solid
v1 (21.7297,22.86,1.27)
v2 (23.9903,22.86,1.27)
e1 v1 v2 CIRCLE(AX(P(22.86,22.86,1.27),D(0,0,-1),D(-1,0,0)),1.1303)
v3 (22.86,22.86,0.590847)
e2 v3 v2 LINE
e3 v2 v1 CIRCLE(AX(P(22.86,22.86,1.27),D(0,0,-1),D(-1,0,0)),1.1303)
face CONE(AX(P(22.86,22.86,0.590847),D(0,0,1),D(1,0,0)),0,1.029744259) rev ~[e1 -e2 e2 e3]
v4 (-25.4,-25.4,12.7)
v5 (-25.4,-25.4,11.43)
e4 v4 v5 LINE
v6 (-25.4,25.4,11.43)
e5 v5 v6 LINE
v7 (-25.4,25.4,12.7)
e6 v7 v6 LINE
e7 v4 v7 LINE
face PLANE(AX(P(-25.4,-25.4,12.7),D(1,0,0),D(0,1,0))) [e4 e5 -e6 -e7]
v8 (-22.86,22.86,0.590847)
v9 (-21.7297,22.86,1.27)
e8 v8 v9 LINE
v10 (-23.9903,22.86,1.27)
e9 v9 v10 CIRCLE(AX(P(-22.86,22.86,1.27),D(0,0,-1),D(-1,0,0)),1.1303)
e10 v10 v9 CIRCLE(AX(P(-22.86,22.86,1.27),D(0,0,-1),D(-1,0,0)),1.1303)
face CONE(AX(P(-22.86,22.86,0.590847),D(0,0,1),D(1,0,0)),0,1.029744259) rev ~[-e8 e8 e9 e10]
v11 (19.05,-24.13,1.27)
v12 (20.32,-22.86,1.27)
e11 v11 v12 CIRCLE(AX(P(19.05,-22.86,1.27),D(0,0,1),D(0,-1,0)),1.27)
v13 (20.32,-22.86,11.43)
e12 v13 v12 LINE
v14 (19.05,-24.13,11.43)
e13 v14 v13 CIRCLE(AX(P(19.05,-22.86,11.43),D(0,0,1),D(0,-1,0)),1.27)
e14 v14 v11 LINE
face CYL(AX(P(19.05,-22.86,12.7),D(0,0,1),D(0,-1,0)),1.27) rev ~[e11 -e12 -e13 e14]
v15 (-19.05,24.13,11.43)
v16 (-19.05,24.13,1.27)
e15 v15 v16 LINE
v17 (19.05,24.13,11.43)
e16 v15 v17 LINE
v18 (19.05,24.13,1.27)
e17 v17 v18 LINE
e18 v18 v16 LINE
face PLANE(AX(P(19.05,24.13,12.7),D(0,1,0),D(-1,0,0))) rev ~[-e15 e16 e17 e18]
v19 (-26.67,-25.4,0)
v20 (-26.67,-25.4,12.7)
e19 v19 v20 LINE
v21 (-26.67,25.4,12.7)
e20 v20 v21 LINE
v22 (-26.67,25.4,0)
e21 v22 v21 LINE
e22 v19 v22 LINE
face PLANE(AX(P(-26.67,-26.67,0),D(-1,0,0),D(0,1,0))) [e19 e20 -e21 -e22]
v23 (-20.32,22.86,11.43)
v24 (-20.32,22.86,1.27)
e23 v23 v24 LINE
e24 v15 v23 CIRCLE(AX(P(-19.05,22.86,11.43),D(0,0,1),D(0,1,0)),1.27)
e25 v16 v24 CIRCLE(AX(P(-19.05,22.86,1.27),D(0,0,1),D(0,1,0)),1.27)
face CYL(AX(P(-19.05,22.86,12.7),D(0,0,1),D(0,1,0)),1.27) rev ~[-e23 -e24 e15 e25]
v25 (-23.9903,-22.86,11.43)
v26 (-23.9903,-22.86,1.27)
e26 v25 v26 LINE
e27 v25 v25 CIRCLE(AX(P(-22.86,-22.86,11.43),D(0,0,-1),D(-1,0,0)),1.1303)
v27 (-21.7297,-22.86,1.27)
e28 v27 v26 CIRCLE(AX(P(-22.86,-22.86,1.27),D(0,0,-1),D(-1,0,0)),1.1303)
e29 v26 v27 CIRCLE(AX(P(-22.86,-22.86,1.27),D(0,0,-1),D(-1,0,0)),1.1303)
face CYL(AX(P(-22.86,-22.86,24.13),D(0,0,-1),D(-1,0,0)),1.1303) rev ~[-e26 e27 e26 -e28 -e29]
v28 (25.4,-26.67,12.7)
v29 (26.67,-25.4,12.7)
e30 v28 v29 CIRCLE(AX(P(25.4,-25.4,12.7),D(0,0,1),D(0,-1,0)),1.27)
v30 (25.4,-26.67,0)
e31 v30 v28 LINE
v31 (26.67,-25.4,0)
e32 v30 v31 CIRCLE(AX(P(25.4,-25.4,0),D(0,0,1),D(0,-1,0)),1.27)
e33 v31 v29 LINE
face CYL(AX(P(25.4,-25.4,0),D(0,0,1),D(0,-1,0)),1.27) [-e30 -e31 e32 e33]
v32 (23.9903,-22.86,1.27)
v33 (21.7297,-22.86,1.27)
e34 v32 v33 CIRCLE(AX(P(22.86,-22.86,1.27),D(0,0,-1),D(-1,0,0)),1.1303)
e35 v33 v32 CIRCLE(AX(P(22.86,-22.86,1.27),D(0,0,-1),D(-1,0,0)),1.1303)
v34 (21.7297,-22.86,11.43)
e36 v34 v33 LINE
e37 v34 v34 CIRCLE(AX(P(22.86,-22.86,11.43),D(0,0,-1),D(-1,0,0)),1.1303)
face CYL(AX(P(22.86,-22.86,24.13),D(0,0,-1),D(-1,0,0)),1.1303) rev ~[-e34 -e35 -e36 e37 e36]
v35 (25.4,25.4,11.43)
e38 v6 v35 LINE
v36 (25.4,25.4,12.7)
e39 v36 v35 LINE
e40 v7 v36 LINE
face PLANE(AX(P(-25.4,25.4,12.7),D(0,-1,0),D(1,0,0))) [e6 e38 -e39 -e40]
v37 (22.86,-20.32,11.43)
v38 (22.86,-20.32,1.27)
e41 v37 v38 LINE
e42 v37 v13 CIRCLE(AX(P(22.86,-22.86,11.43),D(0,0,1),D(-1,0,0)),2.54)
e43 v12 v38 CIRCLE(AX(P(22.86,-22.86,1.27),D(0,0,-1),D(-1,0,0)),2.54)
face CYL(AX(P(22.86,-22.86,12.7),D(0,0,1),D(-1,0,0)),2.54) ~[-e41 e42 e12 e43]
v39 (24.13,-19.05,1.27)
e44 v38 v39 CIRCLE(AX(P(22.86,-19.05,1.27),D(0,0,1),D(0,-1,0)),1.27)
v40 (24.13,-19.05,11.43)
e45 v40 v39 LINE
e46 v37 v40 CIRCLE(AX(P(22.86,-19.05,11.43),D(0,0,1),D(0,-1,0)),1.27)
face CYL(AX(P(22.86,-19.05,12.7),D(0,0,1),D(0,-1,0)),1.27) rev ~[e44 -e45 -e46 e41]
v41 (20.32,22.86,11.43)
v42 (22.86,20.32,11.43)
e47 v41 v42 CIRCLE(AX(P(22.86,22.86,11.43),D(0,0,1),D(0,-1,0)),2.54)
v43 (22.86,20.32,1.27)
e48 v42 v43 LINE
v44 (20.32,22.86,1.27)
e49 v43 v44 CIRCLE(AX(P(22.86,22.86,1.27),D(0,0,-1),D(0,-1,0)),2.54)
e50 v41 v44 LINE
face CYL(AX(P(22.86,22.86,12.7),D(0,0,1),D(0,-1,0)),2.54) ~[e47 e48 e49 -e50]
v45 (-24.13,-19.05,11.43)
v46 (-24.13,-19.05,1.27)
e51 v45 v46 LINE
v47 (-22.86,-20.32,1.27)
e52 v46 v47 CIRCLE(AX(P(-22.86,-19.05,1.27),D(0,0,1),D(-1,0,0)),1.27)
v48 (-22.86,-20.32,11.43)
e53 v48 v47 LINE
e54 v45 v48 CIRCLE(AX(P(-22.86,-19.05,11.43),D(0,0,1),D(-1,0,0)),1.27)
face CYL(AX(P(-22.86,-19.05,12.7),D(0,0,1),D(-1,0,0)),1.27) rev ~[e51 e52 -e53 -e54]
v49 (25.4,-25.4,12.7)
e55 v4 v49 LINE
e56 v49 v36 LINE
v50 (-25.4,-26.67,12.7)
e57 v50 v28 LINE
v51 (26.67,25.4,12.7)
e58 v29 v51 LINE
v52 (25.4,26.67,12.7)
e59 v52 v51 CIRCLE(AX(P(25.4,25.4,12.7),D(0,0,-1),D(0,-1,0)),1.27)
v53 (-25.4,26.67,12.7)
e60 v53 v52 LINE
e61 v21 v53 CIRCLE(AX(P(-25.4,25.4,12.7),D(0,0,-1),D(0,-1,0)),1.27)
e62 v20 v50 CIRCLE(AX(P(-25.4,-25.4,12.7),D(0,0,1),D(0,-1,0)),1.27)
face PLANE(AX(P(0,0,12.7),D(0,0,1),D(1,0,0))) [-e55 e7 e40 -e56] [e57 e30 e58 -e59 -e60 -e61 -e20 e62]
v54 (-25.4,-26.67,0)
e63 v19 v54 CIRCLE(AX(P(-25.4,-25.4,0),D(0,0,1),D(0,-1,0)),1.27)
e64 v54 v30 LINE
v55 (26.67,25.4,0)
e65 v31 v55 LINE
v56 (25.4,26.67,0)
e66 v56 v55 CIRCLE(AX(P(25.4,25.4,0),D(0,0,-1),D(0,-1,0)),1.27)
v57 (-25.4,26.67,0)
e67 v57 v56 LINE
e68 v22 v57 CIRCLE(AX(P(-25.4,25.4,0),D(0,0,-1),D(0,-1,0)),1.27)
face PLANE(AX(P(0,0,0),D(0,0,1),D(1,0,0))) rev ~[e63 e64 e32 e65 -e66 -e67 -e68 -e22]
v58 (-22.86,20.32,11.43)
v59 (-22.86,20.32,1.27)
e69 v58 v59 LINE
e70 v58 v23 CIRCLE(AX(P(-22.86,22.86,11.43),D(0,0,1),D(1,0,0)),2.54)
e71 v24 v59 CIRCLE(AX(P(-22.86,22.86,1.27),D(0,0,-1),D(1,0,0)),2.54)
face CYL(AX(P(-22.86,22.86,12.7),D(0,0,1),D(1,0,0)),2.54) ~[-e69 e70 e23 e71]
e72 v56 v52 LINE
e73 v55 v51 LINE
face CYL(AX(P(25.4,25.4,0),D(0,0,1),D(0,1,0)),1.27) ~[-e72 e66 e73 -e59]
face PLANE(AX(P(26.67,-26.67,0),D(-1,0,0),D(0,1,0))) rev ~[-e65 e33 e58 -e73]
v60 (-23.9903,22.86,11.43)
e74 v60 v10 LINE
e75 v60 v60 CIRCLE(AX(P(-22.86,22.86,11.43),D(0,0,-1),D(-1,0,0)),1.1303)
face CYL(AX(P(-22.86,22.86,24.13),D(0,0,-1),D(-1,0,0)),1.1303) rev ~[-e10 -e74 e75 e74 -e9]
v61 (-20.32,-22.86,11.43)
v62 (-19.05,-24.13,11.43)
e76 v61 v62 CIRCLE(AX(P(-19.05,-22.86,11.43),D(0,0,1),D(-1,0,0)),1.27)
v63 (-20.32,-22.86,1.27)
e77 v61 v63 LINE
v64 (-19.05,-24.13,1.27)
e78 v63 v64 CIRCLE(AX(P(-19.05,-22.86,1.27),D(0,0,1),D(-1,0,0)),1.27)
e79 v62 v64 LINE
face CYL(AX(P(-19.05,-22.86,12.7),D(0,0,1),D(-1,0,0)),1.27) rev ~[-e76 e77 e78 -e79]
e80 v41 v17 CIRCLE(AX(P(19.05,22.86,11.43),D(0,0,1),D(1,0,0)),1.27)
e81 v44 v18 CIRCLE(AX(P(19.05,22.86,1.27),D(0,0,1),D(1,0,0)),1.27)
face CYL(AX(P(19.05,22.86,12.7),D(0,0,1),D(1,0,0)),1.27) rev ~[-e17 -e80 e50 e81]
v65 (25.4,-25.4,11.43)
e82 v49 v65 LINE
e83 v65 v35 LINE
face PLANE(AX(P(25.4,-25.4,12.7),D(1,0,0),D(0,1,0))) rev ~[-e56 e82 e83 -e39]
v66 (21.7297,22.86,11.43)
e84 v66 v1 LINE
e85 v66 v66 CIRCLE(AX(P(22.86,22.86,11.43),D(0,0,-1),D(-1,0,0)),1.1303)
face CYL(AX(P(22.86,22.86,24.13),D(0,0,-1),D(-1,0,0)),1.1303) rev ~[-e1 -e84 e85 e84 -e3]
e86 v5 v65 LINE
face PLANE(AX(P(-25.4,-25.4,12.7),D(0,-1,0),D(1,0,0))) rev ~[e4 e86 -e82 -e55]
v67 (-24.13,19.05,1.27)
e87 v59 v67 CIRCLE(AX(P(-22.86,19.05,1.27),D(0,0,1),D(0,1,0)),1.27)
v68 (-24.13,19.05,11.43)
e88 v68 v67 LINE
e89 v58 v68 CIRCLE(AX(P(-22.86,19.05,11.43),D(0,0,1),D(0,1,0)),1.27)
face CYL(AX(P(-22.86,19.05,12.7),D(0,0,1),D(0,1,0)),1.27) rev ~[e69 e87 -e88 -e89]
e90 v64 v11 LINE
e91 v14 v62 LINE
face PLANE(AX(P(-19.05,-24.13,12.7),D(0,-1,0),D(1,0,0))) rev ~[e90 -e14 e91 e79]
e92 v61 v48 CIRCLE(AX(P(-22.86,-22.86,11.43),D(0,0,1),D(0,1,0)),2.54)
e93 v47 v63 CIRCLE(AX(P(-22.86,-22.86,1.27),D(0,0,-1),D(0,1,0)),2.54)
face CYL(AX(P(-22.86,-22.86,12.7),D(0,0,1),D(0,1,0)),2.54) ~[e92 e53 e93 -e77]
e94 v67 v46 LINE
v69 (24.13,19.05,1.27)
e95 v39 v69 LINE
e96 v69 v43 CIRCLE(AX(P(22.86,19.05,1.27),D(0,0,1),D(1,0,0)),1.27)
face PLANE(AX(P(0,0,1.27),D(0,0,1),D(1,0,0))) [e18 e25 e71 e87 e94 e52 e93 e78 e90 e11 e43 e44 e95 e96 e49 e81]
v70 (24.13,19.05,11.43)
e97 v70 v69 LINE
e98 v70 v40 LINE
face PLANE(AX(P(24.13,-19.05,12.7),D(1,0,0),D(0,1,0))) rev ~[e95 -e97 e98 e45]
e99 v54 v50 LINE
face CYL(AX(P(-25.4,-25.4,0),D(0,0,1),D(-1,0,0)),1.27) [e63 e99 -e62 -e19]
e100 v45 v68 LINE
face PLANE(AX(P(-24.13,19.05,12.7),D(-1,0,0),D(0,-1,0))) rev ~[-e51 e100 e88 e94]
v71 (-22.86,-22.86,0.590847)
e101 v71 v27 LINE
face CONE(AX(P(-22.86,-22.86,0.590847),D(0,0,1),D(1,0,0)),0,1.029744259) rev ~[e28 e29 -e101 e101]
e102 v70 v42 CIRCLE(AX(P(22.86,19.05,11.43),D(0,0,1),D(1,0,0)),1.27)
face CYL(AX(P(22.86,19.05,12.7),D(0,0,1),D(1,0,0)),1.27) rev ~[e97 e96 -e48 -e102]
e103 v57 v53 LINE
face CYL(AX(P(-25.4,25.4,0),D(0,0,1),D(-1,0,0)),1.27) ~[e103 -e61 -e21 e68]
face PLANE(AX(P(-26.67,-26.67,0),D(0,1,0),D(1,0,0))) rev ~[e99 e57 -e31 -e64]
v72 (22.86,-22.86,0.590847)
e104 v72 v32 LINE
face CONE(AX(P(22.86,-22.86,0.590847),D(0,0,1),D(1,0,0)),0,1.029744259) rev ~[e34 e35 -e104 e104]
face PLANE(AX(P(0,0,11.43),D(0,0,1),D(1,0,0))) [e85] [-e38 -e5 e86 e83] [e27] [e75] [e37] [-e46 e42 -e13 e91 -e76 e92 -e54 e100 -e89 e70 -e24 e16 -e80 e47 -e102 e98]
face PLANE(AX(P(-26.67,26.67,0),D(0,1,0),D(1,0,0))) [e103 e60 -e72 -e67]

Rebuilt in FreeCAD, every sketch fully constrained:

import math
import FreeCAD as App
import Part
import Sketcher
from FreeCAD import Vector
Q = App.Units.Quantity


def edges_at(feature, points):
    """Names of the edges that pass closest to the given points."""
    edges = feature.Shape.Edges
    near = lambda p: min(range(len(edges)), key=lambda i: edges[i].distToShape(Part.Vertex(*p))[0])
    return sorted({f"Edge{near(p) + 1}" for p in points})

doc = App.newDocument("Part")
body = doc.addObject("PartDesign::Body", "Body")

# Sketch on XY plane
sketch1 = body.newObject("Sketcher::SketchObject", "Sketch")
sketch1.AttachmentSupport = (doc.getObject("XY_Plane"), [""])
sketch1.MapMode = "FlatFace"
sketch1.addGeometry(Part.LineSegment(Vector(-27, 27, 0), Vector(-27, -27, 0)), False)
sketch1.addGeometry(Part.LineSegment(Vector(-27, -27, 0), Vector(27, -27, 0)), False)
sketch1.addGeometry(Part.LineSegment(Vector(27, -27, 0), Vector(27, 27, 0)), False)
sketch1.addGeometry(Part.LineSegment(Vector(27, 27, 0), Vector(-27, 27, 0)), False)
sketch1.addConstraint(Sketcher.Constraint("Coincident", 0, 2, 1, 1))
sketch1.addConstraint(Sketcher.Constraint("Coincident", 1, 2, 2, 1))
sketch1.addConstraint(Sketcher.Constraint("Coincident", 2, 2, 3, 1))
sketch1.addConstraint(Sketcher.Constraint("Coincident", 3, 2, 0, 1))
sketch1.addConstraint(Sketcher.Constraint("Vertical", 0))
sketch1.addConstraint(Sketcher.Constraint("Horizontal", 1))
sketch1.addConstraint(Sketcher.Constraint("Vertical", 2))
sketch1.addConstraint(Sketcher.Constraint("Horizontal", 3))
sketch1.addConstraint(Sketcher.Constraint("Symmetric", 0, 2, 2, 2, -1, 1))
sketch1.addConstraint(Sketcher.Constraint("Equal", 3, 0))
sketch1.addConstraint(Sketcher.Constraint("DistanceX", 1, 1, 1, 2, Q("2.1 in")))
pad1 = body.newObject("PartDesign::Pad", "Pad")
pad1.Profile = sketch1
pad1.Length = Q("0.5 in")

# Sketch on XY plane
sketch2 = body.newObject("Sketcher::SketchObject", "Sketch001")
sketch2.AttachmentSupport = (doc.getObject("XY_Plane"), [""])
sketch2.MapMode = "FlatFace"
sketch2.AttachmentOffset = App.Placement(Vector(0, 0, 0.5 * 25.4), App.Rotation())
sketch2.addGeometry(Part.Circle(Vector(-22.9, 22.9, 0), Vector(0, 0, 1), 1.1), False)
sketch2.addGeometry(Part.Circle(Vector(22.9, 22.9, 0), Vector(0, 0, 1), 1.1), False)
sketch2.addGeometry(Part.Circle(Vector(22.9, -22.9, 0), Vector(0, 0, 1), 1.1), False)
sketch2.addGeometry(Part.Circle(Vector(-22.9, -22.9, 0), Vector(0, 0, 1), 1.1), False)
sketch2.addConstraint(Sketcher.Constraint("Equal", 0, 1))
sketch2.addConstraint(Sketcher.Constraint("Equal", 1, 2))
sketch2.addConstraint(Sketcher.Constraint("Equal", 2, 3))
sketch2.addConstraint(Sketcher.Constraint("Symmetric", 0, 3, 2, 3, -1, 1))
sketch2.addConstraint(Sketcher.Constraint("Symmetric", 1, 3, 3, 3, -1, 1))
sketch2.addConstraint(Sketcher.Constraint("Symmetric", 0, 3, 1, 3, -2))
sketch2.addConstraint(Sketcher.Constraint("Diameter", 0, Q("0.089 in")))
sketch2.addConstraint(Sketcher.Constraint("DistanceX", 0, 3, -1, 1, Q("0.9 in")))
sketch2.addConstraint(Sketcher.Constraint("DistanceY", -1, 1, 0, 3, Q("0.9 in")))
doc.recompute()
hole = body.newObject("PartDesign::Hole", "Hole")
hole.Profile = sketch2
hole.ThreadType = "None"
hole.Diameter = Q("0.089 in")
hole.DepthType = "Dimension"
hole.Depth = Q("0.45 in")
hole.DrillPoint = "Angled"
hole.DrillPointAngle = 118

# Sketch on XY plane
sketch3 = body.newObject("Sketcher::SketchObject", "Sketch002")
sketch3.AttachmentSupport = (doc.getObject("XY_Plane"), [""])
sketch3.MapMode = "FlatFace"
sketch3.AttachmentOffset = App.Placement(Vector(0, 0, 0.5 * 25.4), App.Rotation())
sketch3.addGeometry(Part.ArcOfCircle(Part.Circle(Vector(-19.1, 22.9, 0), Vector(0, 0, 1), 1.3), math.radians(90), math.radians(180)), False)
sketch3.addGeometry(Part.ArcOfCircle(Part.Circle(Vector(-22.9, 22.9, 0), Vector(0, 0, 1), 2.5), math.radians(-90), math.radians(0)), False)
sketch3.addGeometry(Part.ArcOfCircle(Part.Circle(Vector(-22.9, 19.1, 0), Vector(0, 0, 1), 1.3), math.radians(90), math.radians(180)), False)
sketch3.addGeometry(Part.LineSegment(Vector(-24.1, 19.1, 0), Vector(-24.1, -19.1, 0)), False)
sketch3.addGeometry(Part.ArcOfCircle(Part.Circle(Vector(-22.9, -19.1, 0), Vector(0, 0, 1), 1.3), math.radians(180), math.radians(270)), False)
sketch3.addGeometry(Part.ArcOfCircle(Part.Circle(Vector(-22.9, -22.9, 0), Vector(0, 0, 1), 2.5), math.radians(0), math.radians(90)), False)
sketch3.addGeometry(Part.ArcOfCircle(Part.Circle(Vector(-19.1, -22.9, 0), Vector(0, 0, 1), 1.3), math.radians(180), math.radians(270)), False)
sketch3.addGeometry(Part.LineSegment(Vector(-19.1, -24.1, 0), Vector(19.1, -24.1, 0)), False)
sketch3.addGeometry(Part.ArcOfCircle(Part.Circle(Vector(19.1, -22.9, 0), Vector(0, 0, 1), 1.3), math.radians(-90), math.radians(0)), False)
sketch3.addGeometry(Part.ArcOfCircle(Part.Circle(Vector(22.9, -22.9, 0), Vector(0, 0, 1), 2.5), math.radians(90), math.radians(180)), False)
sketch3.addGeometry(Part.ArcOfCircle(Part.Circle(Vector(22.9, -19.1, 0), Vector(0, 0, 1), 1.3), math.radians(-90), math.radians(0)), False)
sketch3.addGeometry(Part.LineSegment(Vector(24.1, -19.1, 0), Vector(24.1, 19.1, 0)), False)
sketch3.addGeometry(Part.ArcOfCircle(Part.Circle(Vector(22.9, 19.1, 0), Vector(0, 0, 1), 1.3), math.radians(0), math.radians(90)), False)
sketch3.addGeometry(Part.ArcOfCircle(Part.Circle(Vector(22.9, 22.9, 0), Vector(0, 0, 1), 2.5), math.radians(180), math.radians(270)), False)
sketch3.addGeometry(Part.ArcOfCircle(Part.Circle(Vector(19.1, 22.9, 0), Vector(0, 0, 1), 1.3), math.radians(0), math.radians(90)), False)
sketch3.addGeometry(Part.LineSegment(Vector(19.1, 24.1, 0), Vector(-19.1, 24.1, 0)), False)
sketch3.addConstraint(Sketcher.Constraint("Tangent", 0, 2, 1, 2))
sketch3.addConstraint(Sketcher.Constraint("Tangent", 1, 1, 2, 1))
sketch3.addConstraint(Sketcher.Constraint("Tangent", 2, 2, 3, 1))
sketch3.addConstraint(Sketcher.Constraint("Tangent", 3, 2, 4, 1))
sketch3.addConstraint(Sketcher.Constraint("Tangent", 4, 2, 5, 2))
sketch3.addConstraint(Sketcher.Constraint("Tangent", 5, 1, 6, 1))
sketch3.addConstraint(Sketcher.Constraint("Tangent", 6, 2, 7, 1))
sketch3.addConstraint(Sketcher.Constraint("Tangent", 7, 2, 8, 1))
sketch3.addConstraint(Sketcher.Constraint("Tangent", 8, 2, 9, 2))
sketch3.addConstraint(Sketcher.Constraint("Tangent", 9, 1, 10, 1))
sketch3.addConstraint(Sketcher.Constraint("Tangent", 10, 2, 11, 1))
sketch3.addConstraint(Sketcher.Constraint("Tangent", 11, 2, 12, 1))
sketch3.addConstraint(Sketcher.Constraint("Tangent", 12, 2, 13, 2))
sketch3.addConstraint(Sketcher.Constraint("Tangent", 13, 1, 14, 1))
sketch3.addConstraint(Sketcher.Constraint("Tangent", 14, 2, 15, 1))
sketch3.addConstraint(Sketcher.Constraint("Tangent", 15, 2, 0, 1))
sketch3.addConstraint(Sketcher.Constraint("Vertical", 3))
sketch3.addConstraint(Sketcher.Constraint("Horizontal", 7))
sketch3.addConstraint(Sketcher.Constraint("Vertical", 11))
sketch3.addConstraint(Sketcher.Constraint("Horizontal", 15))
sketch3.addConstraint(Sketcher.Constraint("Equal", 0, 2))
sketch3.addConstraint(Sketcher.Constraint("Equal", 2, 4))
sketch3.addConstraint(Sketcher.Constraint("Equal", 1, 5))
sketch3.addConstraint(Sketcher.Constraint("Equal", 4, 6))
sketch3.addConstraint(Sketcher.Constraint("Equal", 6, 8))
sketch3.addConstraint(Sketcher.Constraint("Equal", 5, 9))
sketch3.addConstraint(Sketcher.Constraint("Equal", 8, 10))
sketch3.addConstraint(Sketcher.Constraint("Equal", 10, 12))
sketch3.addConstraint(Sketcher.Constraint("Equal", 9, 13))
sketch3.addConstraint(Sketcher.Constraint("Equal", 12, 14))
sketch3.addConstraint(Sketcher.Constraint("Symmetric", 0, 3, 8, 3, -1, 1))
sketch3.addConstraint(Sketcher.Constraint("Symmetric", 2, 3, 10, 3, -1, 1))
sketch3.addConstraint(Sketcher.Constraint("Symmetric", 5, 3, 13, 3, -1, 1))
sketch3.addConstraint(Sketcher.Constraint("Symmetric", 5, 3, 9, 3, -2))
sketch3.addConstraint(Sketcher.Constraint("Horizontal", 0, 3, 1, 3))
sketch3.addConstraint(Sketcher.Constraint("Vertical", 1, 3, 2, 3))
sketch3.addConstraint(Sketcher.Constraint("Equal", 15, 3))
sketch3.addConstraint(Sketcher.Constraint("Radius", 1, Q("0.1 in")))
sketch3.addConstraint(Sketcher.Constraint("Radius", 0, Q("0.05 in")))
sketch3.addConstraint(Sketcher.Constraint("DistanceX", 7, 1, 7, 2, Q("1.5 in")))
pocket1 = body.newObject("PartDesign::Pocket", "Pocket")
pocket1.Profile = sketch3
pocket1.Length = Q("0.45 in")

# Sketch on XY plane
sketch4 = body.newObject("Sketcher::SketchObject", "Sketch003")
sketch4.AttachmentSupport = (doc.getObject("XY_Plane"), [""])
sketch4.MapMode = "FlatFace"
sketch4.AttachmentOffset = App.Placement(Vector(0, 0, 0.5 * 25.4), App.Rotation())
sketch4.addGeometry(Part.LineSegment(Vector(-25, 25, 0), Vector(-25, -25, 0)), False)
sketch4.addGeometry(Part.LineSegment(Vector(-25, -25, 0), Vector(25, -25, 0)), False)
sketch4.addGeometry(Part.LineSegment(Vector(25, -25, 0), Vector(25, 25, 0)), False)
sketch4.addGeometry(Part.LineSegment(Vector(25, 25, 0), Vector(-25, 25, 0)), False)
sketch4.addConstraint(Sketcher.Constraint("Coincident", 0, 2, 1, 1))
sketch4.addConstraint(Sketcher.Constraint("Coincident", 1, 2, 2, 1))
sketch4.addConstraint(Sketcher.Constraint("Coincident", 2, 2, 3, 1))
sketch4.addConstraint(Sketcher.Constraint("Coincident", 3, 2, 0, 1))
sketch4.addConstraint(Sketcher.Constraint("Vertical", 0))
sketch4.addConstraint(Sketcher.Constraint("Horizontal", 1))
sketch4.addConstraint(Sketcher.Constraint("Vertical", 2))
sketch4.addConstraint(Sketcher.Constraint("Horizontal", 3))
sketch4.addConstraint(Sketcher.Constraint("Symmetric", 0, 2, 2, 2, -1, 1))
sketch4.addConstraint(Sketcher.Constraint("Equal", 3, 0))
sketch4.addConstraint(Sketcher.Constraint("DistanceX", 1, 1, 1, 2, Q("2 in")))
pocket2 = body.newObject("PartDesign::Pocket", "Pocket001")
pocket2.Profile = sketch4
pocket2.Length = Q("0.05 in")
doc.recompute()

fillet = body.newObject("PartDesign::Fillet", "Fillet")
fillet.Base = (pocket2, edges_at(pocket2, [
    (-26.67, -26.67, 6.35),
    (26.67, -26.67, 6.35),
    (26.67, 26.67, 6.35),
    (-26.67, 26.67, 6.35),
]))
fillet.Radius = Q("0.05 in")

doc.recompute()
